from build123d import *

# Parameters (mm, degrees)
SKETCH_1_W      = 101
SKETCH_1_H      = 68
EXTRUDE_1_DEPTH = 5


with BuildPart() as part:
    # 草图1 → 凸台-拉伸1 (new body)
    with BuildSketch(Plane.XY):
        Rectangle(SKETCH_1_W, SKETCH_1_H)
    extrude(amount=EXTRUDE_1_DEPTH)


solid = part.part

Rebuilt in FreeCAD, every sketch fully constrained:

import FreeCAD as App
import Part
import Sketcher
from FreeCAD import Vector
Q = App.Units.Quantity


def add_polygon(sketch, points):
    """Adds a closed chain of lines whose ends are joined by coincident constraints."""
    first, n = sketch.GeometryCount, len(points)
    for a, b in zip(points, points[1:] + points[:1]):
        sketch.addGeometry(Part.LineSegment(App.Vector(*a, 0), App.Vector(*b, 0)), False)
    for i in range(n):
        sketch.addConstraint(Sketcher.Constraint("Coincident", first + i, 2, first + (i + 1) % n, 1))

doc = App.newDocument("Part")
params = doc.addObject("Spreadsheet::Sheet", "Params")
for row, (alias, value) in enumerate([
    ("sketch1_width", "101 mm"),
    ("sketch1_height", "68 mm"),
    ("pad1_length", "5 mm"),
], start=1):
    params.set(f"A{row}", alias)
    params.set(f"B{row}", "=" + value)
    params.setAlias(f"B{row}", alias)

body = doc.addObject("PartDesign::Body", "Body")

sketch1 = body.newObject("Sketcher::SketchObject", "Sketch")
sketch1.AttachmentSupport = (doc.getObject("XY_Plane"), [""])
sketch1.MapMode = "FlatFace"
add_polygon(sketch1, [(-50, 34), (-50, -34), (50, -34), (50, 34)])
sketch1.addConstraint([
    Sketcher.Constraint("Vertical", 0),
    Sketcher.Constraint("Horizontal", 1),
    Sketcher.Constraint("Vertical", 2),
    Sketcher.Constraint("Horizontal", 3),
    Sketcher.Constraint("Symmetric", 0, 2, 2, 2, -1, 1),
    Sketcher.Constraint("DistanceX", 1, 1, 1, 2, Q("101 mm")),
    Sketcher.Constraint("DistanceY", 0, 2, 0, 1, Q("68 mm")),
])
sketch1.setExpression("Constraints[9]", "Params.sketch1_width")
sketch1.setExpression("Constraints[10]", "Params.sketch1_height")
pad1 = body.newObject("PartDesign::Pad", "Pad")
pad1.Profile = sketch1
pad1.setExpression("Length", "Params.pad1_length")

doc.recompute()
